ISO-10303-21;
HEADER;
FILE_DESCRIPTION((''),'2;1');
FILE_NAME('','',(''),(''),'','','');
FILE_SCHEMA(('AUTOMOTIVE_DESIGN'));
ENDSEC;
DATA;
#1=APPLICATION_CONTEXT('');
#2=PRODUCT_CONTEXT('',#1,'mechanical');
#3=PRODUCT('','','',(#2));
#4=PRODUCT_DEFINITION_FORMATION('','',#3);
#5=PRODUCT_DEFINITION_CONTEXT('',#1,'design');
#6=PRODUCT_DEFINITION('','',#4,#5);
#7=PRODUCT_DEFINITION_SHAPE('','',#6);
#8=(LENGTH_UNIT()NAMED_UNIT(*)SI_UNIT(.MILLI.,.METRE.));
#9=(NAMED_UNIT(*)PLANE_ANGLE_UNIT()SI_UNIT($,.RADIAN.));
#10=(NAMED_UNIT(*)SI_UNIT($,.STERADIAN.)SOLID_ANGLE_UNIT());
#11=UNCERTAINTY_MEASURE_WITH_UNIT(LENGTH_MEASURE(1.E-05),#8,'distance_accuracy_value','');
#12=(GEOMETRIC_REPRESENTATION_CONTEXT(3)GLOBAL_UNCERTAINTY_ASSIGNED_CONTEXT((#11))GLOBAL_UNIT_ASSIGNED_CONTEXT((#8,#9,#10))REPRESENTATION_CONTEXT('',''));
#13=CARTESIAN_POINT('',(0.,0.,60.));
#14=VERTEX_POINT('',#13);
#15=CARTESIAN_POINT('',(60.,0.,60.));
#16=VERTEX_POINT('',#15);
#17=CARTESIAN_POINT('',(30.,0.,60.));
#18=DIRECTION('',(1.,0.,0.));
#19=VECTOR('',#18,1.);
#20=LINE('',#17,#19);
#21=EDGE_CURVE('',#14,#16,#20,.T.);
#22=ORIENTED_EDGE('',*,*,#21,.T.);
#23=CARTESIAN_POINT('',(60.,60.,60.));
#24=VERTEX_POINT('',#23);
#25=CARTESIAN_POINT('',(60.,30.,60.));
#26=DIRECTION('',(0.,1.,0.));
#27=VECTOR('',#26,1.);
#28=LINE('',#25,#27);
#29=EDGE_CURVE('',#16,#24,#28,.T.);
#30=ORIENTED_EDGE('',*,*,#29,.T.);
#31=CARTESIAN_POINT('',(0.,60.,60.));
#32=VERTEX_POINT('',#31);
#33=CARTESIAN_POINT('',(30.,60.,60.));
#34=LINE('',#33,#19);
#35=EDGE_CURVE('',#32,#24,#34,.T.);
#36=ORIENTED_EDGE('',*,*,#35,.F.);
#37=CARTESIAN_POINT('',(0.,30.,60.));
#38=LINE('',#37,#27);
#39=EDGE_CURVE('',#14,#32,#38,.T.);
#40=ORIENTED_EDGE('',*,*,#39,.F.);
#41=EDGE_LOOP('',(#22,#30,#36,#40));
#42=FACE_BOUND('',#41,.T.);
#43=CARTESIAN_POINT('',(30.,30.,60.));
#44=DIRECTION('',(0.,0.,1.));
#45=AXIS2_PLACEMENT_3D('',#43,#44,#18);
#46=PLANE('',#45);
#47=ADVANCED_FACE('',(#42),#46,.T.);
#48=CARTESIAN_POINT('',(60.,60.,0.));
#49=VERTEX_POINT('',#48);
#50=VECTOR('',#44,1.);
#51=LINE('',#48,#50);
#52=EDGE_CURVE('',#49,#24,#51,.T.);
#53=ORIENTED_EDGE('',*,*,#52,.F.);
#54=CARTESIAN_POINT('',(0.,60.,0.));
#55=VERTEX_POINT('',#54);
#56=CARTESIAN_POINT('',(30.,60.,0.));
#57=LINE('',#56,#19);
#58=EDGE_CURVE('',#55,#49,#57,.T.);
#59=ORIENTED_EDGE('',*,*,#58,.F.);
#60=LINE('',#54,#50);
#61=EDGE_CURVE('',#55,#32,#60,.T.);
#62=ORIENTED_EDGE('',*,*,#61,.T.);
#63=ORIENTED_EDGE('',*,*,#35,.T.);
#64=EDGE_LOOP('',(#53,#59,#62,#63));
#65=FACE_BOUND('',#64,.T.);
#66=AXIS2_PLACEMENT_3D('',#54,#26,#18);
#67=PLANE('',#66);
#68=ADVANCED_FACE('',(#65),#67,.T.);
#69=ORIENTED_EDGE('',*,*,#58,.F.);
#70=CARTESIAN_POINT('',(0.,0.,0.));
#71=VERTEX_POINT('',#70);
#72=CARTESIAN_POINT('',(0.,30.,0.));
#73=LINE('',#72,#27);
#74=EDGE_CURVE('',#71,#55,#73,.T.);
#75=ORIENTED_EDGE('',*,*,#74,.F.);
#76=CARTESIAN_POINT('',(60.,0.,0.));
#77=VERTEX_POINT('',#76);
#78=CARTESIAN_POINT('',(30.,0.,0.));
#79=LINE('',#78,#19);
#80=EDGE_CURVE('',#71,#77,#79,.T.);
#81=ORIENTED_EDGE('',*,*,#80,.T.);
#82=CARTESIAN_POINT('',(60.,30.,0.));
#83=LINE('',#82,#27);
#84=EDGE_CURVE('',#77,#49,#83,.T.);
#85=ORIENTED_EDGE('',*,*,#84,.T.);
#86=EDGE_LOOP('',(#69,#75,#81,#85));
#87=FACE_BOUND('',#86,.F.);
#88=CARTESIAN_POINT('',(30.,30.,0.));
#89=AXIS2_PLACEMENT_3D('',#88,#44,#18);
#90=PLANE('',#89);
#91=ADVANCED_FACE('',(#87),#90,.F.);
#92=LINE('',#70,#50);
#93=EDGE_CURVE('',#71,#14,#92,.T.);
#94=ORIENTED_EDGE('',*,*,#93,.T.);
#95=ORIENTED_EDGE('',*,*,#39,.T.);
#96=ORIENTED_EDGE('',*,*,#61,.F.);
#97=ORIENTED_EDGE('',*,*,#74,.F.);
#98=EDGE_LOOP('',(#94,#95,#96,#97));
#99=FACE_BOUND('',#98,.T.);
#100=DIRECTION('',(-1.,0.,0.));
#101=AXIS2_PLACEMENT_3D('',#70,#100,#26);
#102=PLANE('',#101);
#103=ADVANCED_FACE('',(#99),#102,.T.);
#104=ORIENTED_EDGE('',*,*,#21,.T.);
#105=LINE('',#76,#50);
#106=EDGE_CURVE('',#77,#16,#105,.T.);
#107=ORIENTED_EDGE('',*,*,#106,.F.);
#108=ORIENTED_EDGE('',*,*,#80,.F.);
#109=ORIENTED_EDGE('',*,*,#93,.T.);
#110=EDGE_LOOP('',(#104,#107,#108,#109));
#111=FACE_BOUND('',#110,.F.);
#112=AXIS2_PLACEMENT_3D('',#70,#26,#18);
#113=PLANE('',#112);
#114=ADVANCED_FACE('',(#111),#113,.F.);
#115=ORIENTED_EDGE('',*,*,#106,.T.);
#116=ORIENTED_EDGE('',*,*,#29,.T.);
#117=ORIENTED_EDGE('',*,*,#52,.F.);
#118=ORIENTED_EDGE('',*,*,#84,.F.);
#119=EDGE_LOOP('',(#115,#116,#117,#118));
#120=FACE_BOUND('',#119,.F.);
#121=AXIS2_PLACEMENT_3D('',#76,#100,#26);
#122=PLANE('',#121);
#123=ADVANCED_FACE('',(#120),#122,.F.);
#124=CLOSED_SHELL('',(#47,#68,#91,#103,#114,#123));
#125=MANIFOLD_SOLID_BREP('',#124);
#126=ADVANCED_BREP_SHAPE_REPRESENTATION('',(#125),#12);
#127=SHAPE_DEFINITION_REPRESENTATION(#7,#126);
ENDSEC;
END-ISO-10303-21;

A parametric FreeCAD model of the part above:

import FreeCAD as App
import Part
import Sketcher


def add_polygon(sketch, points):
    """Adds a closed chain of lines whose ends are joined by coincident constraints."""
    first, n = sketch.GeometryCount, len(points)
    for a, b in zip(points, points[1:] + points[:1]):
        sketch.addGeometry(Part.LineSegment(App.Vector(*a, 0), App.Vector(*b, 0)), False)
    for i in range(n):
        sketch.addConstraint(Sketcher.Constraint("Coincident", first + i, 2, first + (i + 1) % n, 1))

doc = App.newDocument("Part")
body = doc.addObject("PartDesign::Body", "Body")

sketch1 = body.newObject("Sketcher::SketchObject", "Sketch")
sketch1.AttachmentSupport = (doc.getObject("XY_Plane"), [""])
sketch1.MapMode = "FlatFace"
add_polygon(sketch1, [(0, 60), (0, 0), (60, 0), (60, 60)])
sketch1.addConstraint(Sketcher.Constraint("Vertical", 0))
sketch1.addConstraint(Sketcher.Constraint("Horizontal", 1))
sketch1.addConstraint(Sketcher.Constraint("Vertical", 2))
sketch1.addConstraint(Sketcher.Constraint("Horizontal", 3))
sketch1.addConstraint(Sketcher.Constraint("Coincident", 0, 2, -1, 1))
sketch1.addConstraint(Sketcher.Constraint("Equal", 3, 0))
sketch1.addConstraint(Sketcher.Constraint("DistanceX", 1, 1, 1, 2, 60.0))
pad1 = body.newObject("PartDesign::Pad", "Pad")
pad1.Profile = sketch1
pad1.Length = 60

doc.recompute()
